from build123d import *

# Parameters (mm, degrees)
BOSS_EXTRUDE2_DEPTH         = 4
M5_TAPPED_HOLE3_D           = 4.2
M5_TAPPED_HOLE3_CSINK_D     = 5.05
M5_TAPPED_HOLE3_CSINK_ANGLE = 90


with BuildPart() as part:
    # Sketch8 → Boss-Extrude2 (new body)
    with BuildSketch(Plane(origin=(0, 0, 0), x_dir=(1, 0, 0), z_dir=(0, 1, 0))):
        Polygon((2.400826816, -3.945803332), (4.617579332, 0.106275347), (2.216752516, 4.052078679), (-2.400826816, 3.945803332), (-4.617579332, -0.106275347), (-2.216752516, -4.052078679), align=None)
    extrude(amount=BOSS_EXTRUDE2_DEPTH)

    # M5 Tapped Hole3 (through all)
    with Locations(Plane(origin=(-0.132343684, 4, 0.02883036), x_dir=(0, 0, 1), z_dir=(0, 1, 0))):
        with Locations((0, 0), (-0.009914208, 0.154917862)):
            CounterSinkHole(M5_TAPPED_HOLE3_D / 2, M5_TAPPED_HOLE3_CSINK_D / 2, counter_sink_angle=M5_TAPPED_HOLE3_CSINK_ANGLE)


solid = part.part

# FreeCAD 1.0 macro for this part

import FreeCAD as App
import Part
import Sketcher
from FreeCAD import Vector
Q = App.Units.Quantity


def add_polygon(sketch, points):
    """Adds a closed chain of lines whose ends are joined by coincident constraints."""
    first, n = sketch.GeometryCount, len(points)
    for a, b in zip(points, points[1:] + points[:1]):
        sketch.addGeometry(Part.LineSegment(App.Vector(*a, 0), App.Vector(*b, 0)), False)
    for i in range(n):
        sketch.addConstraint(Sketcher.Constraint("Coincident", first + i, 2, first + (i + 1) % n, 1))

doc = App.newDocument("Part")
body = doc.addObject("PartDesign::Body", "Body")

sketch1 = doc.addObject("Sketcher::SketchObject", "Sketch")
body.addObject(sketch1)
sketch1.AttachmentSupport = (doc.XZ_Plane, [""])
sketch1.MapMode = "FlatFace"
add_polygon(sketch1, [(2.4, 3.9), (4.6, -0.1), (2.2, -4.1), (-2.4, -3.9), (-4.6, 0.1), (-2.2, 4.1)])
sketch1.addConstraint(Sketcher.Constraint("Symmetric", 0, 2, 3, 2, -1, 1))
sketch1.addConstraint(Sketcher.Constraint("Symmetric", 1, 2, 4, 2, -1, 1))
sketch1.addConstraint(Sketcher.Constraint("Symmetric", 2, 2, 5, 2, -1, 1))
sketch1.addConstraint(Sketcher.Constraint("Equal", 0, 1))
sketch1.addConstraint(Sketcher.Constraint("Equal", 1, 2))
sketch1.addConstraint(Sketcher.Constraint("DistanceX", -1, 1, 0, 2, Q("4.617579 mm")))
sketch1.addConstraint(Sketcher.Constraint("DistanceY", 1, 2, -1, 1, Q("4.052079 mm")))
sketch1.addConstraint(Sketcher.Constraint("DistanceX", 2, 2, 1, 2, Q("4.617579 mm")))
sketch1.addConstraint(Sketcher.Constraint("DistanceY", 2, 2, 3, 2, Q("4.052079 mm")))
pad1 = doc.addObject("PartDesign::Pad", "Pad")
body.addObject(pad1)
pad1.Profile = sketch1
pad1.Length = 4
pad1.Reversed = True

sketch2 = doc.addObject("Sketcher::SketchObject", "Sketch001")
body.addObject(sketch2)
sketch2.AttachmentSupport = (doc.XZ_Plane, [""])
sketch2.MapMode = "FlatFace"
sketch2.AttachmentOffset = App.Placement(Vector(0, 0, -4), App.Rotation())
sketch2.addGeometry(Part.Circle(Vector(-0.1, 0, 0), Vector(0, 0, 1), 2.1), False)
sketch2.addGeometry(Part.Circle(Vector(0, 0, 0), Vector(0, 0, 1), 2.1), False)
sketch2.addConstraint(Sketcher.Constraint("Equal", 0, 1))
sketch2.addConstraint(Sketcher.Constraint("Diameter", 0, Q("4.2 mm")))
sketch2.addConstraint(Sketcher.Constraint("DistanceY", -1, 1, 0, 3, Q("0.02883 mm")))
sketch2.addConstraint(Sketcher.Constraint("DistanceX", 0, 3, -1, 1, Q("0.132344 mm")))
sketch2.addConstraint(Sketcher.Constraint("DistanceX", -1, 1, 1, 3, Q("0.022574 mm")))
sketch2.addConstraint(Sketcher.Constraint("DistanceY", -1, 1, 1, 3, Q("0.018916 mm")))
doc.recompute()
hole = doc.addObject("PartDesign::Hole", "Hole")
body.addObject(hole)
hole.Profile = sketch2
hole.ThreadType = "None"
hole.Diameter = 4.2
hole.DepthType = "ThroughAll"
hole.HoleCutType = "Countersink"
hole.HoleCutDiameter = 5.05
hole.HoleCutCountersinkAngle = 90
hole.Reversed = True

doc.recompute()
